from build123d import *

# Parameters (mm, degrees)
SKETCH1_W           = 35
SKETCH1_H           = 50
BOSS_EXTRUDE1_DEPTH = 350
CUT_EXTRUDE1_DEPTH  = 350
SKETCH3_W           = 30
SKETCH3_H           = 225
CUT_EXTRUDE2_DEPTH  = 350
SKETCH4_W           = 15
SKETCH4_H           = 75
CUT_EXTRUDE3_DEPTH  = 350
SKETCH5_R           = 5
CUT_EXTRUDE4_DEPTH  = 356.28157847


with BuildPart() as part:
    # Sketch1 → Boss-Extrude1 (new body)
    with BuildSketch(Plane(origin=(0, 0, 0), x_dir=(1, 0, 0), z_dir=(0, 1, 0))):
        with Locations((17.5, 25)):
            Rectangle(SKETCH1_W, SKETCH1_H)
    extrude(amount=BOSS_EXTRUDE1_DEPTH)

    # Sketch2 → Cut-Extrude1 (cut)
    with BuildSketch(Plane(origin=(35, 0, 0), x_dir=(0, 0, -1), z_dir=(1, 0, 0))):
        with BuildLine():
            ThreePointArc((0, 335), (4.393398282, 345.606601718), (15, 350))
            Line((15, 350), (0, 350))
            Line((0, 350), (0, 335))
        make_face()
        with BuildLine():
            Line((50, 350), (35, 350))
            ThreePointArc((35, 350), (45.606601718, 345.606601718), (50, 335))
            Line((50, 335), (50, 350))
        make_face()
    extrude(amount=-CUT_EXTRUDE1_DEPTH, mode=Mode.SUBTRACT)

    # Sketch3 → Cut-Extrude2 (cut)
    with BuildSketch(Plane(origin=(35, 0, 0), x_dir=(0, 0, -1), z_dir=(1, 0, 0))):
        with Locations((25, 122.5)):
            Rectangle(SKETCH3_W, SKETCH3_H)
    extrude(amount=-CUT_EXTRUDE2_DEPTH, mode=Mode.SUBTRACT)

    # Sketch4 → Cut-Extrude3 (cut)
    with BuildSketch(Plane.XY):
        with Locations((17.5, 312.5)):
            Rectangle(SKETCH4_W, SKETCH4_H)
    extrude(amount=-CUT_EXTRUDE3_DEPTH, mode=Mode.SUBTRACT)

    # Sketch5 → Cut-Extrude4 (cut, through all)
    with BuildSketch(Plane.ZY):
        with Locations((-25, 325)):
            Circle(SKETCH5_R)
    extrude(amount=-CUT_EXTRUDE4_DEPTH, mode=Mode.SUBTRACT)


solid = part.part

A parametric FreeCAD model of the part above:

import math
import FreeCAD as App
import Part
import Sketcher
Q = App.Units.Quantity


def add_polygon(sketch, points):
    """Adds a closed chain of lines whose ends are joined by coincident constraints."""
    first, n = sketch.GeometryCount, len(points)
    for a, b in zip(points, points[1:] + points[:1]):
        sketch.addGeometry(Part.LineSegment(App.Vector(*a, 0), App.Vector(*b, 0)), False)
    for i in range(n):
        sketch.addConstraint(Sketcher.Constraint("Coincident", first + i, 2, first + (i + 1) % n, 1))

doc = App.newDocument("Part")
body = doc.addObject("PartDesign::Body", "Body")

# Sketch on XZ plane
sketch1 = doc.addObject("Sketcher::SketchObject", "Sketch")
body.addObject(sketch1)
sketch1.AttachmentSupport = (doc.XZ_Plane, [""])
sketch1.MapMode = "FlatFace"
add_polygon(sketch1, [(0, -50), (0, 0), (35, 0), (35, -50)])  # lines 0-3
sketch1.addConstraint(Sketcher.Constraint("Vertical", 0))
sketch1.addConstraint(Sketcher.Constraint("Horizontal", 1))
sketch1.addConstraint(Sketcher.Constraint("Vertical", 2))
sketch1.addConstraint(Sketcher.Constraint("Horizontal", 3))
sketch1.addConstraint(Sketcher.Constraint("Coincident", 0, 2, -1, 1))
sketch1.addConstraint(Sketcher.Constraint("DistanceX", 1, 1, 1, 2, Q("35 mm")))
sketch1.addConstraint(Sketcher.Constraint("DistanceY", 0, 1, 0, 2, Q("50 mm")))
pad1 = doc.addObject("PartDesign::Pad", "Pad")
body.addObject(pad1)
pad1.Profile = sketch1
pad1.Length = 350
pad1.Reversed = True

# Sketch on YZ plane
sketch2 = doc.addObject("Sketcher::SketchObject", "Sketch001")
body.addObject(sketch2)
sketch2.AttachmentSupport = (doc.YZ_Plane, [""])
sketch2.MapMode = "FlatFace"
sketch2.AttachmentOffset = App.Placement(App.Vector(0, 0, 35), App.Rotation())
sketch2.addGeometry(Part.ArcOfCircle(Part.Circle(App.Vector(335, -15, 0), App.Vector(0, 0, 1), 15), math.radians(0), math.radians(90)), False)
sketch2.addGeometry(Part.LineSegment(App.Vector(350, -15, 0), App.Vector(350, 0, 0)), False)
sketch2.addGeometry(Part.LineSegment(App.Vector(350, 0, 0), App.Vector(335, 0, 0)), False)
sketch2.addGeometry(Part.LineSegment(App.Vector(350, -50, 0), App.Vector(350, -35, 0)), False)
sketch2.addGeometry(Part.ArcOfCircle(Part.Circle(App.Vector(335, -35, 0), App.Vector(0, 0, 1), 15), math.radians(-90), math.radians(0)), False)
sketch2.addGeometry(Part.LineSegment(App.Vector(335, -50, 0), App.Vector(350, -50, 0)), False)
sketch2.addConstraint(Sketcher.Constraint("Tangent", 0, 1, 1, 1))
sketch2.addConstraint(Sketcher.Constraint("Coincident", 1, 2, 2, 1))
sketch2.addConstraint(Sketcher.Constraint("Tangent", 2, 2, 0, 2))
sketch2.addConstraint(Sketcher.Constraint("Tangent", 3, 2, 4, 2))
sketch2.addConstraint(Sketcher.Constraint("Tangent", 4, 1, 5, 1))
sketch2.addConstraint(Sketcher.Constraint("Coincident", 5, 2, 3, 1))
sketch2.addConstraint(Sketcher.Constraint("Vertical", 1))
sketch2.addConstraint(Sketcher.Constraint("Horizontal", 2))
sketch2.addConstraint(Sketcher.Constraint("Vertical", 3))
sketch2.addConstraint(Sketcher.Constraint("Horizontal", 5))
sketch2.addConstraint(Sketcher.Constraint("Equal", 0, 4))
sketch2.addConstraint(Sketcher.Constraint("PointOnObject", 1, 2, -1))
sketch2.addConstraint(Sketcher.Constraint("Vertical", 0, 3, 4, 3))
sketch2.addConstraint(Sketcher.Constraint("Radius", 0, Q("15 mm")))
sketch2.addConstraint(Sketcher.Constraint("DistanceX", -1, 1, 0, 3, Q("335 mm")))
sketch2.addConstraint(Sketcher.Constraint("DistanceY", 4, 3, -1, 1, Q("35 mm")))
pocket1 = doc.addObject("PartDesign::Pocket", "Pocket")
body.addObject(pocket1)
pocket1.Profile = sketch2
pocket1.Length = 350

# Sketch on YZ plane
sketch3 = doc.addObject("Sketcher::SketchObject", "Sketch002")
body.addObject(sketch3)
sketch3.AttachmentSupport = (doc.YZ_Plane, [""])
sketch3.MapMode = "FlatFace"
sketch3.AttachmentOffset = App.Placement(App.Vector(0, 0, 35), App.Rotation())
add_polygon(sketch3, [(235, -10), (10, -10), (10, -40), (235, -40)])  # lines 0-3
sketch3.addConstraint(Sketcher.Constraint("Horizontal", 0))
sketch3.addConstraint(Sketcher.Constraint("Vertical", 1))
sketch3.addConstraint(Sketcher.Constraint("Horizontal", 2))
sketch3.addConstraint(Sketcher.Constraint("Vertical", 3))
sketch3.addConstraint(Sketcher.Constraint("DistanceX", 0, 2, 0, 1, Q("225 mm")))
sketch3.addConstraint(Sketcher.Constraint("DistanceY", 1, 2, 1, 1, Q("30 mm")))
sketch3.addConstraint(Sketcher.Constraint("DistanceX", -1, 1, 0, 2, Q("10 mm")))
sketch3.addConstraint(Sketcher.Constraint("DistanceY", 0, 2, -1, 1, Q("10 mm")))
pocket2 = doc.addObject("PartDesign::Pocket", "Pocket001")
body.addObject(pocket2)
pocket2.Profile = sketch3
pocket2.Length = 350

# Sketch on XY plane
sketch4 = doc.addObject("Sketcher::SketchObject", "Sketch003")
body.addObject(sketch4)
sketch4.AttachmentSupport = (doc.XY_Plane, [""])
sketch4.MapMode = "FlatFace"
add_polygon(sketch4, [(10, 350), (10, 275), (25, 275), (25, 350)])  # lines 0-3
sketch4.addConstraint(Sketcher.Constraint("Vertical", 0))
sketch4.addConstraint(Sketcher.Constraint("Horizontal", 1))
sketch4.addConstraint(Sketcher.Constraint("Vertical", 2))
sketch4.addConstraint(Sketcher.Constraint("Horizontal", 3))
sketch4.addConstraint(Sketcher.Constraint("DistanceX", 1, 1, 1, 2, Q("15 mm")))
sketch4.addConstraint(Sketcher.Constraint("DistanceY", 0, 2, 0, 1, Q("75 mm")))
sketch4.addConstraint(Sketcher.Constraint("DistanceX", -1, 1, 0, 2, Q("10 mm")))
sketch4.addConstraint(Sketcher.Constraint("DistanceY", -1, 1, 0, 2, Q("275 mm")))
pocket3 = doc.addObject("PartDesign::Pocket", "Pocket002")
body.addObject(pocket3)
pocket3.Profile = sketch4
pocket3.Length = 350

# Sketch on YZ plane
sketch5 = doc.addObject("Sketcher::SketchObject", "Sketch004")
body.addObject(sketch5)
sketch5.AttachmentSupport = (doc.YZ_Plane, [""])
sketch5.MapMode = "FlatFace"
sketch5.addGeometry(Part.Circle(App.Vector(325, -25, 0), App.Vector(0, 0, 1), 5), False)
sketch5.addConstraint(Sketcher.Constraint("Diameter", 0, Q("10 mm")))
sketch5.addConstraint(Sketcher.Constraint("DistanceX", -1, 1, 0, 3, Q("325 mm")))
sketch5.addConstraint(Sketcher.Constraint("DistanceY", 0, 3, -1, 1, Q("25 mm")))
pocket4 = doc.addObject("PartDesign::Pocket", "Pocket003")
body.addObject(pocket4)
pocket4.Profile = sketch5
pocket4.Type = "ThroughAll"
pocket4.Reversed = True

doc.recompute()
